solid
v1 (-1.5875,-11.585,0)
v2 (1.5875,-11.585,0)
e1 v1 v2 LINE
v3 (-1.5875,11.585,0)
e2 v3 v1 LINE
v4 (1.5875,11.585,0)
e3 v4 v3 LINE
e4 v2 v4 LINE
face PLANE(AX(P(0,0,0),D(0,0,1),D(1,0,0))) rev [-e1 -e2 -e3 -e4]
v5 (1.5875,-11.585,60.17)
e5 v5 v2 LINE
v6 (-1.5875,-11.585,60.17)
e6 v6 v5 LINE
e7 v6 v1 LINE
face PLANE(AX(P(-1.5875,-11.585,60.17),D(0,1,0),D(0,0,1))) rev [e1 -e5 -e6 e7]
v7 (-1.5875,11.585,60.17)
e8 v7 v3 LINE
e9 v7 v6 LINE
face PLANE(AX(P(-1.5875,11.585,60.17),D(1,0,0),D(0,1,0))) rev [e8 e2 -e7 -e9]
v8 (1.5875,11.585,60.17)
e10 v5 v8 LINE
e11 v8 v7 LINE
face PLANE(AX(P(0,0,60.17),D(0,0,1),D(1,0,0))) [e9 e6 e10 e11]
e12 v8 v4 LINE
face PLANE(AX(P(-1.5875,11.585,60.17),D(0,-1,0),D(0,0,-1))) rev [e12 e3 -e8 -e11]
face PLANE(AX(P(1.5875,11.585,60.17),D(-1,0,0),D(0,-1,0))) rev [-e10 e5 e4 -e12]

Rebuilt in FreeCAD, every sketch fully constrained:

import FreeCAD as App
import Part
import Sketcher

V = App.Vector
Q = App.Units.Quantity

doc = App.newDocument("Part")
body = doc.addObject("PartDesign::Body", "Body")

# Sketch on XY plane
sketch1 = body.newObject("Sketcher::SketchObject", "Sketch")
sketch1.AttachmentSupport = (doc.getObject("XY_Plane"), [""])
sketch1.MapMode = "FlatFace"
sketch1.addGeometry([
    Part.LineSegment(V(-1.6, 11.6, 0), V(-1.6, -11.6, 0)),
    Part.LineSegment(V(-1.6, -11.6, 0), V(1.6, -11.6, 0)),
    Part.LineSegment(V(1.6, -11.6, 0), V(1.6, 11.6, 0)),
    Part.LineSegment(V(1.6, 11.6, 0), V(-1.6, 11.6, 0)),
], False)
sketch1.addConstraint([
    Sketcher.Constraint("Coincident", 0, 2, 1, 1),
    Sketcher.Constraint("Coincident", 1, 2, 2, 1),
    Sketcher.Constraint("Coincident", 2, 2, 3, 1),
    Sketcher.Constraint("Coincident", 3, 2, 0, 1),
    Sketcher.Constraint("Vertical", 0),
    Sketcher.Constraint("Horizontal", 1),
    Sketcher.Constraint("Vertical", 2),
    Sketcher.Constraint("Horizontal", 3),
    Sketcher.Constraint("Symmetric", 0, 2, 2, 2, -1, 1),
    Sketcher.Constraint("DistanceX", 1, 1, 1, 2, Q("0.125 in")),
    Sketcher.Constraint("DistanceY", 0, 2, 0, 1, 23.17),
])
pad1 = body.newObject("PartDesign::Pad", "Pad")
pad1.Profile = sketch1
pad1.Length = 60.17

doc.recompute()
